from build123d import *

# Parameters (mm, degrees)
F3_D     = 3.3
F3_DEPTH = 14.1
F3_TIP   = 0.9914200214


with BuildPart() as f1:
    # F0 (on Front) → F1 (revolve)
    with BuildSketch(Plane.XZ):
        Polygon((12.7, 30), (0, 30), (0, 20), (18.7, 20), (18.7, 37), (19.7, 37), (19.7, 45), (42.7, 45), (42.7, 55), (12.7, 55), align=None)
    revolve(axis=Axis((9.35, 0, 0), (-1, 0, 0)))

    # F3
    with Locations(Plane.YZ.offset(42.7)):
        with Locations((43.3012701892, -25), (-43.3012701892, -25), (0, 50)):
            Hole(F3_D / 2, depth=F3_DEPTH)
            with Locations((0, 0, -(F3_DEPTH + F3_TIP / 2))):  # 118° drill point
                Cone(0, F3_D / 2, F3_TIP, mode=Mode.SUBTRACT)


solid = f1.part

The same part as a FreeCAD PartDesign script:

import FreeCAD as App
import Part
import Sketcher
from FreeCAD import Vector
Q = App.Units.Quantity

doc = App.newDocument("Part")
body = doc.addObject("PartDesign::Body", "Body")

sketch1 = doc.addObject("Sketcher::SketchObject", "Sketch")
body.addObject(sketch1)
sketch1.AttachmentSupport = (doc.XZ_Plane, [""])
sketch1.MapMode = "FlatFace"
sketch1.addGeometry([
    Part.LineSegment(Vector(12.7, 30, 0), Vector(0, 30, 0)),
    Part.LineSegment(Vector(0, 30, 0), Vector(0, 20, 0)),
    Part.LineSegment(Vector(0, 20, 0), Vector(18.7, 20, 0)),
    Part.LineSegment(Vector(18.7, 20, 0), Vector(18.7, 37, 0)),
    Part.LineSegment(Vector(18.7, 37, 0), Vector(19.7, 37, 0)),
    Part.LineSegment(Vector(19.7, 37, 0), Vector(19.7, 45, 0)),
    Part.LineSegment(Vector(19.7, 45, 0), Vector(42.7, 45, 0)),
    Part.LineSegment(Vector(42.7, 45, 0), Vector(42.7, 55, 0)),
    Part.LineSegment(Vector(42.7, 55, 0), Vector(12.7, 55, 0)),
    Part.LineSegment(Vector(12.7, 55, 0), Vector(12.7, 30, 0)),
], False)
sketch1.addConstraint([
    Sketcher.Constraint("Coincident", 0, 2, 1, 1),
    Sketcher.Constraint("Coincident", 1, 2, 2, 1),
    Sketcher.Constraint("Coincident", 2, 2, 3, 1),
    Sketcher.Constraint("Coincident", 3, 2, 4, 1),
    Sketcher.Constraint("Coincident", 4, 2, 5, 1),
    Sketcher.Constraint("Coincident", 5, 2, 6, 1),
    Sketcher.Constraint("Coincident", 6, 2, 7, 1),
    Sketcher.Constraint("Coincident", 7, 2, 8, 1),
    Sketcher.Constraint("Coincident", 8, 2, 9, 1),
    Sketcher.Constraint("Coincident", 9, 2, 0, 1),
    Sketcher.Constraint("Horizontal", 0),
    Sketcher.Constraint("Vertical", 1),
    Sketcher.Constraint("Horizontal", 2),
    Sketcher.Constraint("Vertical", 3),
    Sketcher.Constraint("Horizontal", 4),
    Sketcher.Constraint("Vertical", 5),
    Sketcher.Constraint("Horizontal", 6),
    Sketcher.Constraint("Vertical", 7),
    Sketcher.Constraint("Horizontal", 8),
    Sketcher.Constraint("Vertical", 9),
    Sketcher.Constraint("PointOnObject", 0, 2, -2),
    Sketcher.Constraint("Equal", 1, 7),
    Sketcher.Constraint("DistanceX", 4, 1, 4, 2, Q("1 mm")),
    Sketcher.Constraint("DistanceX", 6, 1, 6, 2, Q("23 mm")),
    Sketcher.Constraint("DistanceX", 8, 2, 8, 1, Q("30 mm")),
    Sketcher.Constraint("DistanceY", 1, 2, 1, 1, Q("10 mm")),
    Sketcher.Constraint("DistanceY", 3, 1, 3, 2, Q("17 mm")),
    Sketcher.Constraint("DistanceY", 5, 1, 5, 2, Q("8 mm")),
    Sketcher.Constraint("DistanceX", 0, 2, 0, 1, Q("12.7 mm")),
    Sketcher.Constraint("DistanceY", -1, 1, 0, 2, Q("30 mm")),
])
revolution = doc.addObject("PartDesign::Revolution", "Revolution")
body.addObject(revolution)
revolution.Profile = sketch1
revolution.ReferenceAxis = (sketch1, ["H_Axis"])
revolution.Angle = 360

sketch2 = doc.addObject("Sketcher::SketchObject", "Sketch001")
body.addObject(sketch2)
sketch2.AttachmentSupport = (doc.YZ_Plane, [""])
sketch2.MapMode = "FlatFace"
sketch2.AttachmentOffset = App.Placement(Vector(0, 0, 42.7), App.Rotation())
sketch2.addGeometry([
    Part.Circle(Vector(43.30127, -25, 0), Vector(0, 0, 1), 1.65),
    Part.Circle(Vector(-43.30127, -25, 0), Vector(0, 0, 1), 1.65),
    Part.Circle(Vector(0, 50, 0), Vector(0, 0, 1), 1.65),
], False)
sketch2.addConstraint([
    Sketcher.Constraint("Equal", 0, 1),
    Sketcher.Constraint("Equal", 1, 2),
    Sketcher.Constraint("Symmetric", 0, 3, 1, 3, -2),
    Sketcher.Constraint("PointOnObject", 2, 3, -2),
    Sketcher.Constraint("Diameter", 0, Q("3.3 mm")),
    Sketcher.Constraint("DistanceY", 0, 3, -1, 1, Q("25 mm")),
    Sketcher.Constraint("DistanceY", -1, 1, 2, 3, Q("50 mm")),
    Sketcher.Constraint("DistanceX", -1, 1, 0, 3, Q("43.30127 mm")),
])
doc.recompute()
hole = doc.addObject("PartDesign::Hole", "Hole")
body.addObject(hole)
hole.Profile = sketch2
hole.ThreadType = "None"
hole.Diameter = 3.3
hole.DepthType = "Dimension"
hole.Depth = 14.1
hole.DrillPoint = "Angled"
hole.DrillPointAngle = 118

doc.recompute()
